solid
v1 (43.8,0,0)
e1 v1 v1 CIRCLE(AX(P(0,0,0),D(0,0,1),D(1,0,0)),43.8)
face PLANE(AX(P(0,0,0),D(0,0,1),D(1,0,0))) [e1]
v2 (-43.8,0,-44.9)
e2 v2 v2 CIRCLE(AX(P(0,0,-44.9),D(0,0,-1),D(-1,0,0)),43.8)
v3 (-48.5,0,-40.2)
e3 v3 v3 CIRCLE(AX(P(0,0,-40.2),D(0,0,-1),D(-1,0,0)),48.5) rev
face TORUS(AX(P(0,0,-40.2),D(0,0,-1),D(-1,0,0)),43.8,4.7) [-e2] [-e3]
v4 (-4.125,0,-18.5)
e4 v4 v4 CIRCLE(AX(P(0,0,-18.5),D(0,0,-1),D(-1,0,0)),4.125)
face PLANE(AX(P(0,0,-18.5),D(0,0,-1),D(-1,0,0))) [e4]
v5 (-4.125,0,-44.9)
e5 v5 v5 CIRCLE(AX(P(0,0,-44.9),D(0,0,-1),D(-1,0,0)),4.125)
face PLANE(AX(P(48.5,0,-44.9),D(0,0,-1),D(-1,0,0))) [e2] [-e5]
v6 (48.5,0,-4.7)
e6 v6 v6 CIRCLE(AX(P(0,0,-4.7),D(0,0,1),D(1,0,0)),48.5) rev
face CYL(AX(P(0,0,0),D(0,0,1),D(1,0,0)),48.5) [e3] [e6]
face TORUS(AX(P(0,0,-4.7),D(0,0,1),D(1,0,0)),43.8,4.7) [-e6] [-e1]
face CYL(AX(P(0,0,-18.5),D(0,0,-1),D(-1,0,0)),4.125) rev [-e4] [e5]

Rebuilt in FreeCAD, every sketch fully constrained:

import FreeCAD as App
import Part
import Sketcher

V = App.Vector
Q = App.Units.Quantity


def edges_at(feature, points):
    """Names of the edges that pass closest to the given points."""
    edges = feature.Shape.Edges
    near = lambda p: min(range(len(edges)), key=lambda i: edges[i].distToShape(Part.Vertex(*p))[0])
    return sorted({f"Edge{near(p) + 1}" for p in points})


def add_polygon(sketch, points):
    """Adds a closed chain of lines whose ends are joined by coincident constraints."""
    first, n = sketch.GeometryCount, len(points)
    for a, b in zip(points, points[1:] + points[:1]):
        sketch.addGeometry(Part.LineSegment(App.Vector(*a, 0), App.Vector(*b, 0)), False)
    for i in range(n):
        sketch.addConstraint(Sketcher.Constraint("Coincident", first + i, 2, first + (i + 1) % n, 1))

doc = App.newDocument("Part")
body = doc.addObject("PartDesign::Body", "Body")

# Sketch on XZ plane
sketch1 = body.newObject("Sketcher::SketchObject", "Sketch")
sketch1.AttachmentSupport = (doc.getObject("XZ_Plane"), [""])
sketch1.MapMode = "FlatFace"
add_polygon(sketch1, [(0, -45), (0, 0), (48, 0), (48, -45)])  # lines 0-3
sketch1.addConstraint([
    Sketcher.Constraint("Vertical", 0),
    Sketcher.Constraint("Horizontal", 1),
    Sketcher.Constraint("Vertical", 2),
    Sketcher.Constraint("Horizontal", 3),
    Sketcher.Constraint("Coincident", 0, 2, -1, 1),
    Sketcher.Constraint("DistanceX", 1, 1, 1, 2, Q("48.5 mm")),
    Sketcher.Constraint("DistanceY", 0, 1, 0, 2, Q("44.9 mm")),
])
revolution = body.newObject("PartDesign::Revolution", "Revolution")
revolution.Profile = sketch1
revolution.ReferenceAxis = (sketch1, ["V_Axis"])
revolution.Angle = 360

# Sketch on XY plane
sketch2 = body.newObject("Sketcher::SketchObject", "Sketch001")
sketch2.AttachmentSupport = (doc.getObject("XY_Plane"), [""])
sketch2.MapMode = "FlatFace"
sketch2.AttachmentOffset = App.Placement(V(0, 0, -44.9), App.Rotation())
sketch2.addGeometry(Part.Circle(V(0, 0, 0), V(0, 0, 1), 4.1), False)
sketch2.addConstraint([
    Sketcher.Constraint("Coincident", 0, 3, -1, 1),
    Sketcher.Constraint("Diameter", 0, Q("8.25 mm")),
])
pocket1 = body.newObject("PartDesign::Pocket", "Pocket")
pocket1.Profile = sketch2
pocket1.Length = 26.4
pocket1.Reversed = True
doc.recompute()

fillet = body.newObject("PartDesign::Fillet", "Fillet")
fillet.Base = (pocket1, edges_at(pocket1, [(-48.5, 0, -44.9), (-48.5, 0, 0)]))
fillet.Radius = 4.7

doc.recompute()
